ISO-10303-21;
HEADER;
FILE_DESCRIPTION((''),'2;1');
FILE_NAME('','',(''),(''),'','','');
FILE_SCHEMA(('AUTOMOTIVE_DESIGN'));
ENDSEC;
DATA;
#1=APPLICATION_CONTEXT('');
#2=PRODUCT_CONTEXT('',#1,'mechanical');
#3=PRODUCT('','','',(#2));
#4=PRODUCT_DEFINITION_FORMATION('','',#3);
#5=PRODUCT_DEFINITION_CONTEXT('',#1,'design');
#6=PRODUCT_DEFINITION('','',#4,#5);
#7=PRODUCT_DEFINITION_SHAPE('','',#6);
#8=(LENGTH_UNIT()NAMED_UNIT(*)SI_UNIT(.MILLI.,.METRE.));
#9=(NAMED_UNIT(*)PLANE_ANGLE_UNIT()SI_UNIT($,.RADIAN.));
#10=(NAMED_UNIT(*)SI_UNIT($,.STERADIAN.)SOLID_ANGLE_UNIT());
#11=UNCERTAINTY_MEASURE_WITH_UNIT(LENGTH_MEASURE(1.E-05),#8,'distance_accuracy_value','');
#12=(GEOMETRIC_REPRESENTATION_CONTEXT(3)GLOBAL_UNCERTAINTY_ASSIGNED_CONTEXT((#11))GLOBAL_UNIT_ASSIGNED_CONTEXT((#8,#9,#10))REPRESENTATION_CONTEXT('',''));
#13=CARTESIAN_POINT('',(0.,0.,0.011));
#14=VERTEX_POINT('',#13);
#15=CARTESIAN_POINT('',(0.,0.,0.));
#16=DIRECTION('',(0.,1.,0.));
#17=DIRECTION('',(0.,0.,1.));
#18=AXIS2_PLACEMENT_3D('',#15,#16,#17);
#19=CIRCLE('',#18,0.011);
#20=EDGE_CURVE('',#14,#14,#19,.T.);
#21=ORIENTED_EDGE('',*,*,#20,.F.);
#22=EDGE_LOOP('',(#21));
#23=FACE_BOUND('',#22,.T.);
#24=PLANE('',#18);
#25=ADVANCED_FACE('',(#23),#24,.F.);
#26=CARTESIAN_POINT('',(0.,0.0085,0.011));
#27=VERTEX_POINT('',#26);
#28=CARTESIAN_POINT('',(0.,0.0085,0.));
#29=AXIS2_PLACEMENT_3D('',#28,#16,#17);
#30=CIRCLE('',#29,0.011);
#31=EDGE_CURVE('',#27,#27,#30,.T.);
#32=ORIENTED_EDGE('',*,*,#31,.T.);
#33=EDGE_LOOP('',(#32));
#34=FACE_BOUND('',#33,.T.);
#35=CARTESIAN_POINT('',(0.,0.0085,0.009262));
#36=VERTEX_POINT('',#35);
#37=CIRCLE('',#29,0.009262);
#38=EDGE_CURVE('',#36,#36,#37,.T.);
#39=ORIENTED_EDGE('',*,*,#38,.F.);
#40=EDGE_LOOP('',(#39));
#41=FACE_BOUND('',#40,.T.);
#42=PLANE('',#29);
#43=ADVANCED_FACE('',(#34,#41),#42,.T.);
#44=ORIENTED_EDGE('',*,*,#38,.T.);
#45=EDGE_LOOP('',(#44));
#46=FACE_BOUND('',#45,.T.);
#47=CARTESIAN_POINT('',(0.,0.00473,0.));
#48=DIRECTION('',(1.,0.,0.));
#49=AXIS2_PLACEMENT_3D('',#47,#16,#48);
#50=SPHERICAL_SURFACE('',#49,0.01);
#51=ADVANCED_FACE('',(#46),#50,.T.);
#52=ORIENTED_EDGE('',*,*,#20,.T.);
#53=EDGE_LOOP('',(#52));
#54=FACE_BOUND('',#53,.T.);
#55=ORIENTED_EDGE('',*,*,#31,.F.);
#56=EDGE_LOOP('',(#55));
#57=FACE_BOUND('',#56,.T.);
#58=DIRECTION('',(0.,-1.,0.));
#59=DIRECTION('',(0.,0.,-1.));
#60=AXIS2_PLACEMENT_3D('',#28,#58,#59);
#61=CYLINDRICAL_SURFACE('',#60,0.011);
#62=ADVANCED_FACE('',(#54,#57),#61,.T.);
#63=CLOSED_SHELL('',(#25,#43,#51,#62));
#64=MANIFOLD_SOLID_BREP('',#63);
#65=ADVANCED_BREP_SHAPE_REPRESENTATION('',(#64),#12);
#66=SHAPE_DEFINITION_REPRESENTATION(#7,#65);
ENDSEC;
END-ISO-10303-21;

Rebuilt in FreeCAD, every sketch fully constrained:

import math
import FreeCAD as App
import Part
import Sketcher
Q = App.Units.Quantity

doc = App.newDocument("Part")
body = doc.addObject("PartDesign::Body", "Body")

# Sketch on XZ plane
sketch1 = body.newObject("Sketcher::SketchObject", "Sketch")
sketch1.AttachmentSupport = (doc.getObject("XZ_Plane"), [""])
sketch1.MapMode = "FlatFace"
sketch1.addGeometry(Part.Circle(App.Vector(0, 0, 0), App.Vector(0, 0, 1), 0.011), False)
sketch1.addConstraint(Sketcher.Constraint("Coincident", 0, 3, -1, 1))
sketch1.addConstraint(Sketcher.Constraint("Diameter", 0, Q("0.022 mm")))
pad1 = body.newObject("PartDesign::Pad", "Pad")
pad1.Profile = sketch1
pad1.Length = 0.0085
pad1.Reversed = True

# Sketch on XY plane
sketch2 = body.newObject("Sketcher::SketchObject", "Sketch001")
sketch2.AttachmentSupport = (doc.getObject("XY_Plane"), [""])
sketch2.MapMode = "FlatFace"
sketch2.addGeometry(Part.LineSegment(App.Vector(0, 0.005, 0), App.Vector(0, 0.015, 0)), False)
sketch2.addGeometry(Part.ArcOfCircle(Part.Circle(App.Vector(0, 0.005, 0), App.Vector(0, 0, 1), 0.01), math.radians(90), math.radians(180)), False)
sketch2.addGeometry(Part.LineSegment(App.Vector(-0.01, 0.005, 0), App.Vector(0, 0.005, 0)), False)
sketch2.addConstraint(Sketcher.Constraint("Coincident", 0, 2, 1, 1))
sketch2.addConstraint(Sketcher.Constraint("Coincident", 1, 2, 2, 1))
sketch2.addConstraint(Sketcher.Constraint("Coincident", 2, 2, 0, 1))
sketch2.addConstraint(Sketcher.Constraint("Vertical", 0))
sketch2.addConstraint(Sketcher.Constraint("Horizontal", 2))
sketch2.addConstraint(Sketcher.Constraint("Coincident", 2, 2, 1, 3))
sketch2.addConstraint(Sketcher.Constraint("PointOnObject", 1, 3, -2))
sketch2.addConstraint(Sketcher.Constraint("Radius", 1, Q("0.01 mm")))
sketch2.addConstraint(Sketcher.Constraint("DistanceY", -1, 1, 1, 3, Q("0.00473 mm")))
revolution = body.newObject("PartDesign::Revolution", "Revolution")
revolution.Profile = sketch2
revolution.ReferenceAxis = (sketch2, ["V_Axis"])
revolution.Angle = 360

doc.recompute()
